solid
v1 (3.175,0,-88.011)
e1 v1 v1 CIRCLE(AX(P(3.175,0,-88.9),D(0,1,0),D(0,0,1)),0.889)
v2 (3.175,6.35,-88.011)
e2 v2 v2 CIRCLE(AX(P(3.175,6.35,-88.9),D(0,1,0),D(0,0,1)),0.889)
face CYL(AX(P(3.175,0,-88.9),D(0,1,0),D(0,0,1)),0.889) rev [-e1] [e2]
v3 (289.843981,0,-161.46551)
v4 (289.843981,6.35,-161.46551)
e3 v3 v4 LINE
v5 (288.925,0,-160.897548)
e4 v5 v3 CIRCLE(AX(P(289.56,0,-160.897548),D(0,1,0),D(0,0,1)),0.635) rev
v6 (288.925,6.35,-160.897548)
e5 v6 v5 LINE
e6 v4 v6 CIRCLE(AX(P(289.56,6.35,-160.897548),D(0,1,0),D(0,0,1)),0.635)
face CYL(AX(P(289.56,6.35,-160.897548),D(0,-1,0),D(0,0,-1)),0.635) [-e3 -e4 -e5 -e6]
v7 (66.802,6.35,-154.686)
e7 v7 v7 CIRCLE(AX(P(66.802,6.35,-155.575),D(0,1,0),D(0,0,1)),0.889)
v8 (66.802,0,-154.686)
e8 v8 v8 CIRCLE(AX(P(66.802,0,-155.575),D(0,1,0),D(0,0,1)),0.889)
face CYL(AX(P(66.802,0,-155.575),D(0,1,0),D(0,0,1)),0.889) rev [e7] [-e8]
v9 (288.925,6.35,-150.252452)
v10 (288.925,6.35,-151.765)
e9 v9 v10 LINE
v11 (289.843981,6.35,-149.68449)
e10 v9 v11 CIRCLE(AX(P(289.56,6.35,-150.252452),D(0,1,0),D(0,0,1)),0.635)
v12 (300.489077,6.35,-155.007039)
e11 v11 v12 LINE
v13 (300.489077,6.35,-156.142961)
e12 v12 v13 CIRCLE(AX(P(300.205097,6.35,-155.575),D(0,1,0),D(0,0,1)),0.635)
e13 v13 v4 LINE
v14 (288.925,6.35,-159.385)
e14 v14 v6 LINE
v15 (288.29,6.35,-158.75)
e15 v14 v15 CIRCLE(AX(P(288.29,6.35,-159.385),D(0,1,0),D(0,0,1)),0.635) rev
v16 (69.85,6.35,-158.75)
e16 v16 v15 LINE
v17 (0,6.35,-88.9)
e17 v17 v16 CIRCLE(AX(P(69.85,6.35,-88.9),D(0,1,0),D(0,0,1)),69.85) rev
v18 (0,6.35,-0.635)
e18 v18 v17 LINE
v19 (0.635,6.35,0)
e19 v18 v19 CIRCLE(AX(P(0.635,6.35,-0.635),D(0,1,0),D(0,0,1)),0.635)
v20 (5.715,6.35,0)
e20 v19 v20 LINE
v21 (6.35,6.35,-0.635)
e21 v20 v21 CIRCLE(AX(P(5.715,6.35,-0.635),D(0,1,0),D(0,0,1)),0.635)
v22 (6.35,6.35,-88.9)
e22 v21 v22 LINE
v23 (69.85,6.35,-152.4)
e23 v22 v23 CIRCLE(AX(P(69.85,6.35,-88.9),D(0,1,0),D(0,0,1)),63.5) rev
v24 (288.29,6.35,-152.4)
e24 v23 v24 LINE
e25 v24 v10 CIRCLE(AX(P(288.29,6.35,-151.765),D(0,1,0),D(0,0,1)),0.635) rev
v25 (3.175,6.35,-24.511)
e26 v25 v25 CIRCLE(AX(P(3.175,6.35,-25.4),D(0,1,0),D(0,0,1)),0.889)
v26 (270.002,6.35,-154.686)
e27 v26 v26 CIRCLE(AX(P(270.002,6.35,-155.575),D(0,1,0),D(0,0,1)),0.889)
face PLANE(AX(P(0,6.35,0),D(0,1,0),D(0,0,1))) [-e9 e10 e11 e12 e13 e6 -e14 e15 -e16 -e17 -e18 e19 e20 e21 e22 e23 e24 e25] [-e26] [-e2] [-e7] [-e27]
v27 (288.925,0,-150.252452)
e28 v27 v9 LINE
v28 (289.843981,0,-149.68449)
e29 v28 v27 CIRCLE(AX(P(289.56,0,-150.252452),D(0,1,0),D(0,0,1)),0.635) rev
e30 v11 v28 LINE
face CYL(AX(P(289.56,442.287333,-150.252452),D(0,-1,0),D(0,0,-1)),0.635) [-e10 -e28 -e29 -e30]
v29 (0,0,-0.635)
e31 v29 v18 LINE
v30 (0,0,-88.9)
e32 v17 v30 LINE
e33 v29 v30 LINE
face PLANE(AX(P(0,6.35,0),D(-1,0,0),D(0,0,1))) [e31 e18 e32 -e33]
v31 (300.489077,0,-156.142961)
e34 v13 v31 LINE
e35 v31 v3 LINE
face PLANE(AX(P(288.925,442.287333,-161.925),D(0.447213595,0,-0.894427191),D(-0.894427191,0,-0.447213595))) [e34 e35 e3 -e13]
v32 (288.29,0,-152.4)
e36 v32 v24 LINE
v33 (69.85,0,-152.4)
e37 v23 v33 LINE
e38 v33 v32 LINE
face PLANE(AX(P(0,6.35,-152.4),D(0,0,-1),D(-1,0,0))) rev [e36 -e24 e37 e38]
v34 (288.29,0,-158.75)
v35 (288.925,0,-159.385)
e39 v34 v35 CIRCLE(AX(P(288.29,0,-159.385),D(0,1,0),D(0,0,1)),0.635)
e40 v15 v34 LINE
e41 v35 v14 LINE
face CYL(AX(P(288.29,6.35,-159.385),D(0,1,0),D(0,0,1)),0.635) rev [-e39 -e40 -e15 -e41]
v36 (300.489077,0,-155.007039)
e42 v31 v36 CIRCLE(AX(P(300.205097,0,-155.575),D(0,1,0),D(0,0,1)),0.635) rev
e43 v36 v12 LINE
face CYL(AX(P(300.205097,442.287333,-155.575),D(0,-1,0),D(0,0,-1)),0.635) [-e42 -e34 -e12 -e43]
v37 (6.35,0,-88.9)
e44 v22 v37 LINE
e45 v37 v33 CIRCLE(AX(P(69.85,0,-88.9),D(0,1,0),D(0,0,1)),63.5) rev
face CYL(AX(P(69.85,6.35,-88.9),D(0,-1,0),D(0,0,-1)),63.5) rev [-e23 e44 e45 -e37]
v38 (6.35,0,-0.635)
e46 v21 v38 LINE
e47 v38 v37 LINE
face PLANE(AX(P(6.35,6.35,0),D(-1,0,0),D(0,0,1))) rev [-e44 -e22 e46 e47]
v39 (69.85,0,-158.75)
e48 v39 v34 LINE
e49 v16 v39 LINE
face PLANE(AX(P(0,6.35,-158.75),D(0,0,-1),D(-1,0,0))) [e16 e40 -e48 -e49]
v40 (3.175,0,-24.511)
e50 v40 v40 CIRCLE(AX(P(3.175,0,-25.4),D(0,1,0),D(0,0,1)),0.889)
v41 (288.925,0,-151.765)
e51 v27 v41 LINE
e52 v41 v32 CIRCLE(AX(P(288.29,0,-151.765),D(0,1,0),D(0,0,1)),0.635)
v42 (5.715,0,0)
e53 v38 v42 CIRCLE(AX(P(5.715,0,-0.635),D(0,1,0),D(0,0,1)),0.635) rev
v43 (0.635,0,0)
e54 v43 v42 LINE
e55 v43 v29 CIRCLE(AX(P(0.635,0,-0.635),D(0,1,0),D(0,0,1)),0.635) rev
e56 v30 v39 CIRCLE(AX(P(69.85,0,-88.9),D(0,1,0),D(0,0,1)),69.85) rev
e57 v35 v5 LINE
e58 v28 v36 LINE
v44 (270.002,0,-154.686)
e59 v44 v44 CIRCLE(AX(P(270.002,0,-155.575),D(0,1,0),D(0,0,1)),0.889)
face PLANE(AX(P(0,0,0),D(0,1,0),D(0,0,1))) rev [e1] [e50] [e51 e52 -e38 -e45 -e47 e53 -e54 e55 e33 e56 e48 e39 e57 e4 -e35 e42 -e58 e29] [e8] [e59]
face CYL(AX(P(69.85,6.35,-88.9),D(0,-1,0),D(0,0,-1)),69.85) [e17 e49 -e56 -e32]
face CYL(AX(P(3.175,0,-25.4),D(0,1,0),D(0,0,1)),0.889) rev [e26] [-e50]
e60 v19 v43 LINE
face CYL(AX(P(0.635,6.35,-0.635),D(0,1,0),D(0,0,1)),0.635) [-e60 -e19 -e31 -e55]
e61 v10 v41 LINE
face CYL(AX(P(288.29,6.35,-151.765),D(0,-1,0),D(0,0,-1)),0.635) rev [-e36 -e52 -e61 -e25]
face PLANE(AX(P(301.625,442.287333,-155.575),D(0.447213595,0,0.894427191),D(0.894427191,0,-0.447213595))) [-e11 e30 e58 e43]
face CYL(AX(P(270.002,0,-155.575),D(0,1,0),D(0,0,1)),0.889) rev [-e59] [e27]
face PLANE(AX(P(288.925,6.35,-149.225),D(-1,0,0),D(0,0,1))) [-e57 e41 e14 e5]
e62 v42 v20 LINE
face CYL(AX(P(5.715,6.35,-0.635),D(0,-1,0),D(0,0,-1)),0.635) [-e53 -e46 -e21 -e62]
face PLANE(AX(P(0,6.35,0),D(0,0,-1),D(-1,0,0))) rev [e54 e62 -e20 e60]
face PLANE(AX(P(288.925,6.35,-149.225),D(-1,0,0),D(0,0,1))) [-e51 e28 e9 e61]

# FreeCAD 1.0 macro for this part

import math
import FreeCAD as App
import Part
import Sketcher
from FreeCAD import Vector
Q = App.Units.Quantity


def edges_at(feature, points):
    """Names of the edges that pass closest to the given points."""
    edges = feature.Shape.Edges
    near = lambda p: min(range(len(edges)), key=lambda i: edges[i].distToShape(Part.Vertex(*p))[0])
    return sorted({f"Edge{near(p) + 1}" for p in points})

doc = App.newDocument("Part")
body = doc.addObject("PartDesign::Body", "Body")

sketch1 = body.newObject("Sketcher::SketchObject", "Sketch")
sketch1.AttachmentSupport = (doc.getObject("XZ_Plane"), [""])
sketch1.MapMode = "FlatFace"
sketch1.addGeometry([
    Part.LineSegment(Vector(0, -88.9, 0), Vector(0, 0, 0)),
    Part.LineSegment(Vector(0, 0, 0), Vector(6.3, 0, 0)),
    Part.LineSegment(Vector(6.3, 0, 0), Vector(6.3, -88.9, 0)),
    Part.ArcOfCircle(Part.Circle(Vector(69.9, -88.9, 0), Vector(0, 0, 1), 63.5), math.radians(-180), math.radians(-90)),
    Part.LineSegment(Vector(69.8, -152.4, 0), Vector(288.9, -152.4, 0)),
    Part.LineSegment(Vector(288.9, -152.4, 0), Vector(288.9, -149.2, 0)),
    Part.LineSegment(Vector(288.9, -149.2, 0), Vector(301.6, -149.2, 0)),
    Part.LineSegment(Vector(301.6, -149.2, 0), Vector(301.6, -161.9, 0)),
    Part.LineSegment(Vector(301.6, -161.9, 0), Vector(288.9, -161.9, 0)),
    Part.LineSegment(Vector(288.9, -161.9, 0), Vector(288.9, -158.8, 0)),
    Part.LineSegment(Vector(288.9, -158.8, 0), Vector(69.8, -158.8, 0)),
    Part.ArcOfCircle(Part.Circle(Vector(69.8, -88.9, 0), Vector(0, 0, 1), 69.8), math.radians(180), math.radians(270)),
], False)
sketch1.addConstraint([
    Sketcher.Constraint("Coincident", 0, 2, 1, 1),
    Sketcher.Constraint("Coincident", 1, 2, 2, 1),
    Sketcher.Constraint("Tangent", 2, 2, 3, 1),
    Sketcher.Constraint("Tangent", 3, 2, 4, 1),
    Sketcher.Constraint("Coincident", 4, 2, 5, 1),
    Sketcher.Constraint("Coincident", 5, 2, 6, 1),
    Sketcher.Constraint("Coincident", 6, 2, 7, 1),
    Sketcher.Constraint("Coincident", 7, 2, 8, 1),
    Sketcher.Constraint("Coincident", 8, 2, 9, 1),
    Sketcher.Constraint("Coincident", 9, 2, 10, 1),
    Sketcher.Constraint("Tangent", 10, 2, 11, 2),
    Sketcher.Constraint("Tangent", 11, 1, 0, 1),
    Sketcher.Constraint("Vertical", 0),
    Sketcher.Constraint("Horizontal", 1),
    Sketcher.Constraint("Vertical", 2),
    Sketcher.Constraint("Horizontal", 4),
    Sketcher.Constraint("Vertical", 5),
    Sketcher.Constraint("Horizontal", 6),
    Sketcher.Constraint("Vertical", 7),
    Sketcher.Constraint("Horizontal", 8),
    Sketcher.Constraint("Vertical", 9),
    Sketcher.Constraint("Horizontal", 10),
    Sketcher.Constraint("Coincident", 0, 2, -1, 1),
    Sketcher.Constraint("Coincident", 11, 3, 3, 3),
    Sketcher.Constraint("Vertical", 5, 2, 8, 2),
    Sketcher.Constraint("Equal", 8, 7),
    Sketcher.Constraint("Equal", 5, 9),
    Sketcher.Constraint("Radius", 3, Q("2.5 in")),
    Sketcher.Constraint("Radius", 11, Q("2.75 in")),
    Sketcher.Constraint("DistanceX", 6, 1, 6, 2, Q("0.5 in")),
    Sketcher.Constraint("DistanceY", 0, 1, 0, 2, Q("3.5 in")),
    Sketcher.Constraint("DistanceX", 4, 1, 4, 2, Q("8.625 in")),
])
pad1 = body.newObject("PartDesign::Pad", "Pad")
pad1.Profile = sketch1
pad1.Length = Q("0.25 in")
pad1.Reversed = True

sketch2 = body.newObject("Sketcher::SketchObject", "Sketch001")
sketch2.AttachmentSupport = (doc.getObject("XZ_Plane"), [""])
sketch2.MapMode = "FlatFace"
sketch2.AttachmentOffset = App.Placement(Vector(0, 0, -0.25 * 25.4), App.Rotation())
sketch2.addGeometry([
    Part.LineSegment(Vector(302, -162, 0), Vector(289, -162, 0)),
    Part.LineSegment(Vector(289, -162, 0), Vector(302, -156, 0)),
    Part.LineSegment(Vector(302, -156, 0), Vector(302, -162, 0)),
    Part.LineSegment(Vector(302, -149, 0), Vector(302, -156, 0)),
    Part.LineSegment(Vector(302, -156, 0), Vector(289, -149, 0)),
    Part.LineSegment(Vector(289, -149, 0), Vector(302, -149, 0)),
], False)
sketch2.addConstraint([
    Sketcher.Constraint("Coincident", 0, 2, 1, 1),
    Sketcher.Constraint("Coincident", 1, 2, 2, 1),
    Sketcher.Constraint("Coincident", 2, 2, 0, 1),
    Sketcher.Constraint("Coincident", 3, 2, 4, 1),
    Sketcher.Constraint("Coincident", 4, 2, 5, 1),
    Sketcher.Constraint("Coincident", 5, 2, 3, 1),
    Sketcher.Constraint("Horizontal", 0),
    Sketcher.Constraint("Vertical", 2),
    Sketcher.Constraint("Vertical", 3),
    Sketcher.Constraint("Horizontal", 5),
    Sketcher.Constraint("Coincident", 3, 2, 1, 2),
    Sketcher.Constraint("Vertical", 0, 2, 4, 2),
    Sketcher.Constraint("Equal", 2, 3),
    Sketcher.Constraint("DistanceX", 0, 2, 0, 1, Q("0.5 in")),
    Sketcher.Constraint("DistanceY", 2, 2, 2, 1, Q("0.25 in")),
    Sketcher.Constraint("DistanceX", -1, 1, 0, 2, Q("11.375 in")),
    Sketcher.Constraint("DistanceY", 0, 2, -1, 1, Q("6.375 in")),
])
pocket1 = body.newObject("PartDesign::Pocket", "Pocket")
pocket1.Profile = sketch2
pocket1.Type = "ThroughAll"
pocket1.Midplane = True
doc.recompute()

fillet = body.newObject("PartDesign::Fillet", "Fillet")
fillet.Base = (pocket1, edges_at(pocket1, [
    (0, 3.175, 0),
    (288.925, 3.175, -158.75),
    (288.925, 3.175, -152.4),
    (6.35, 3.175, 0),
    (288.925, 3.175, -161.925),
    (288.925, 3.175, -149.225),
    (301.625, 3.175, -155.575),
]))
fillet.Radius = Q("0.025 in")

sketch3 = body.newObject("Sketcher::SketchObject", "Sketch002")
sketch3.AttachmentSupport = (doc.getObject("XZ_Plane"), [""])
sketch3.MapMode = "FlatFace"
sketch3.AttachmentOffset = App.Placement(Vector(0, 0, -0.25 * 25.4), App.Rotation())
sketch3.addGeometry([
    Part.Circle(Vector(3.2, -25.4, 0), Vector(0, 0, 1), 0.9),
    Part.Circle(Vector(3.2, -88.9, 0), Vector(0, 0, 1), 0.9),
    Part.Circle(Vector(66.8, -155.6, 0), Vector(0, 0, 1), 0.9),
    Part.Circle(Vector(270, -155.6, 0), Vector(0, 0, 1), 0.9),
], False)
sketch3.addConstraint([
    Sketcher.Constraint("Equal", 0, 1),
    Sketcher.Constraint("Equal", 1, 2),
    Sketcher.Constraint("Equal", 2, 3),
    Sketcher.Constraint("Horizontal", 2, 3, 3, 3),
    Sketcher.Constraint("Vertical", 0, 3, 1, 3),
    Sketcher.Constraint("Diameter", 0, Q("0.07 in")),
    Sketcher.Constraint("DistanceY", 0, 3, -1, 1, Q("1 in")),
    Sketcher.Constraint("DistanceX", 2, 3, 3, 3, Q("8 in")),
    Sketcher.Constraint("DistanceY", 1, 3, -1, 1, Q("3.5 in")),
    Sketcher.Constraint("DistanceX", -1, 1, 2, 3, Q("2.63 in")),
    Sketcher.Constraint("DistanceX", -1, 1, 0, 3, Q("0.125 in")),
    Sketcher.Constraint("DistanceY", 2, 3, -1, 1, Q("6.125 in")),
])
pocket2 = body.newObject("PartDesign::Pocket", "Pocket001")
pocket2.Profile = sketch3
pocket2.Type = "ThroughAll"
pocket2.Reversed = True

doc.recompute()
